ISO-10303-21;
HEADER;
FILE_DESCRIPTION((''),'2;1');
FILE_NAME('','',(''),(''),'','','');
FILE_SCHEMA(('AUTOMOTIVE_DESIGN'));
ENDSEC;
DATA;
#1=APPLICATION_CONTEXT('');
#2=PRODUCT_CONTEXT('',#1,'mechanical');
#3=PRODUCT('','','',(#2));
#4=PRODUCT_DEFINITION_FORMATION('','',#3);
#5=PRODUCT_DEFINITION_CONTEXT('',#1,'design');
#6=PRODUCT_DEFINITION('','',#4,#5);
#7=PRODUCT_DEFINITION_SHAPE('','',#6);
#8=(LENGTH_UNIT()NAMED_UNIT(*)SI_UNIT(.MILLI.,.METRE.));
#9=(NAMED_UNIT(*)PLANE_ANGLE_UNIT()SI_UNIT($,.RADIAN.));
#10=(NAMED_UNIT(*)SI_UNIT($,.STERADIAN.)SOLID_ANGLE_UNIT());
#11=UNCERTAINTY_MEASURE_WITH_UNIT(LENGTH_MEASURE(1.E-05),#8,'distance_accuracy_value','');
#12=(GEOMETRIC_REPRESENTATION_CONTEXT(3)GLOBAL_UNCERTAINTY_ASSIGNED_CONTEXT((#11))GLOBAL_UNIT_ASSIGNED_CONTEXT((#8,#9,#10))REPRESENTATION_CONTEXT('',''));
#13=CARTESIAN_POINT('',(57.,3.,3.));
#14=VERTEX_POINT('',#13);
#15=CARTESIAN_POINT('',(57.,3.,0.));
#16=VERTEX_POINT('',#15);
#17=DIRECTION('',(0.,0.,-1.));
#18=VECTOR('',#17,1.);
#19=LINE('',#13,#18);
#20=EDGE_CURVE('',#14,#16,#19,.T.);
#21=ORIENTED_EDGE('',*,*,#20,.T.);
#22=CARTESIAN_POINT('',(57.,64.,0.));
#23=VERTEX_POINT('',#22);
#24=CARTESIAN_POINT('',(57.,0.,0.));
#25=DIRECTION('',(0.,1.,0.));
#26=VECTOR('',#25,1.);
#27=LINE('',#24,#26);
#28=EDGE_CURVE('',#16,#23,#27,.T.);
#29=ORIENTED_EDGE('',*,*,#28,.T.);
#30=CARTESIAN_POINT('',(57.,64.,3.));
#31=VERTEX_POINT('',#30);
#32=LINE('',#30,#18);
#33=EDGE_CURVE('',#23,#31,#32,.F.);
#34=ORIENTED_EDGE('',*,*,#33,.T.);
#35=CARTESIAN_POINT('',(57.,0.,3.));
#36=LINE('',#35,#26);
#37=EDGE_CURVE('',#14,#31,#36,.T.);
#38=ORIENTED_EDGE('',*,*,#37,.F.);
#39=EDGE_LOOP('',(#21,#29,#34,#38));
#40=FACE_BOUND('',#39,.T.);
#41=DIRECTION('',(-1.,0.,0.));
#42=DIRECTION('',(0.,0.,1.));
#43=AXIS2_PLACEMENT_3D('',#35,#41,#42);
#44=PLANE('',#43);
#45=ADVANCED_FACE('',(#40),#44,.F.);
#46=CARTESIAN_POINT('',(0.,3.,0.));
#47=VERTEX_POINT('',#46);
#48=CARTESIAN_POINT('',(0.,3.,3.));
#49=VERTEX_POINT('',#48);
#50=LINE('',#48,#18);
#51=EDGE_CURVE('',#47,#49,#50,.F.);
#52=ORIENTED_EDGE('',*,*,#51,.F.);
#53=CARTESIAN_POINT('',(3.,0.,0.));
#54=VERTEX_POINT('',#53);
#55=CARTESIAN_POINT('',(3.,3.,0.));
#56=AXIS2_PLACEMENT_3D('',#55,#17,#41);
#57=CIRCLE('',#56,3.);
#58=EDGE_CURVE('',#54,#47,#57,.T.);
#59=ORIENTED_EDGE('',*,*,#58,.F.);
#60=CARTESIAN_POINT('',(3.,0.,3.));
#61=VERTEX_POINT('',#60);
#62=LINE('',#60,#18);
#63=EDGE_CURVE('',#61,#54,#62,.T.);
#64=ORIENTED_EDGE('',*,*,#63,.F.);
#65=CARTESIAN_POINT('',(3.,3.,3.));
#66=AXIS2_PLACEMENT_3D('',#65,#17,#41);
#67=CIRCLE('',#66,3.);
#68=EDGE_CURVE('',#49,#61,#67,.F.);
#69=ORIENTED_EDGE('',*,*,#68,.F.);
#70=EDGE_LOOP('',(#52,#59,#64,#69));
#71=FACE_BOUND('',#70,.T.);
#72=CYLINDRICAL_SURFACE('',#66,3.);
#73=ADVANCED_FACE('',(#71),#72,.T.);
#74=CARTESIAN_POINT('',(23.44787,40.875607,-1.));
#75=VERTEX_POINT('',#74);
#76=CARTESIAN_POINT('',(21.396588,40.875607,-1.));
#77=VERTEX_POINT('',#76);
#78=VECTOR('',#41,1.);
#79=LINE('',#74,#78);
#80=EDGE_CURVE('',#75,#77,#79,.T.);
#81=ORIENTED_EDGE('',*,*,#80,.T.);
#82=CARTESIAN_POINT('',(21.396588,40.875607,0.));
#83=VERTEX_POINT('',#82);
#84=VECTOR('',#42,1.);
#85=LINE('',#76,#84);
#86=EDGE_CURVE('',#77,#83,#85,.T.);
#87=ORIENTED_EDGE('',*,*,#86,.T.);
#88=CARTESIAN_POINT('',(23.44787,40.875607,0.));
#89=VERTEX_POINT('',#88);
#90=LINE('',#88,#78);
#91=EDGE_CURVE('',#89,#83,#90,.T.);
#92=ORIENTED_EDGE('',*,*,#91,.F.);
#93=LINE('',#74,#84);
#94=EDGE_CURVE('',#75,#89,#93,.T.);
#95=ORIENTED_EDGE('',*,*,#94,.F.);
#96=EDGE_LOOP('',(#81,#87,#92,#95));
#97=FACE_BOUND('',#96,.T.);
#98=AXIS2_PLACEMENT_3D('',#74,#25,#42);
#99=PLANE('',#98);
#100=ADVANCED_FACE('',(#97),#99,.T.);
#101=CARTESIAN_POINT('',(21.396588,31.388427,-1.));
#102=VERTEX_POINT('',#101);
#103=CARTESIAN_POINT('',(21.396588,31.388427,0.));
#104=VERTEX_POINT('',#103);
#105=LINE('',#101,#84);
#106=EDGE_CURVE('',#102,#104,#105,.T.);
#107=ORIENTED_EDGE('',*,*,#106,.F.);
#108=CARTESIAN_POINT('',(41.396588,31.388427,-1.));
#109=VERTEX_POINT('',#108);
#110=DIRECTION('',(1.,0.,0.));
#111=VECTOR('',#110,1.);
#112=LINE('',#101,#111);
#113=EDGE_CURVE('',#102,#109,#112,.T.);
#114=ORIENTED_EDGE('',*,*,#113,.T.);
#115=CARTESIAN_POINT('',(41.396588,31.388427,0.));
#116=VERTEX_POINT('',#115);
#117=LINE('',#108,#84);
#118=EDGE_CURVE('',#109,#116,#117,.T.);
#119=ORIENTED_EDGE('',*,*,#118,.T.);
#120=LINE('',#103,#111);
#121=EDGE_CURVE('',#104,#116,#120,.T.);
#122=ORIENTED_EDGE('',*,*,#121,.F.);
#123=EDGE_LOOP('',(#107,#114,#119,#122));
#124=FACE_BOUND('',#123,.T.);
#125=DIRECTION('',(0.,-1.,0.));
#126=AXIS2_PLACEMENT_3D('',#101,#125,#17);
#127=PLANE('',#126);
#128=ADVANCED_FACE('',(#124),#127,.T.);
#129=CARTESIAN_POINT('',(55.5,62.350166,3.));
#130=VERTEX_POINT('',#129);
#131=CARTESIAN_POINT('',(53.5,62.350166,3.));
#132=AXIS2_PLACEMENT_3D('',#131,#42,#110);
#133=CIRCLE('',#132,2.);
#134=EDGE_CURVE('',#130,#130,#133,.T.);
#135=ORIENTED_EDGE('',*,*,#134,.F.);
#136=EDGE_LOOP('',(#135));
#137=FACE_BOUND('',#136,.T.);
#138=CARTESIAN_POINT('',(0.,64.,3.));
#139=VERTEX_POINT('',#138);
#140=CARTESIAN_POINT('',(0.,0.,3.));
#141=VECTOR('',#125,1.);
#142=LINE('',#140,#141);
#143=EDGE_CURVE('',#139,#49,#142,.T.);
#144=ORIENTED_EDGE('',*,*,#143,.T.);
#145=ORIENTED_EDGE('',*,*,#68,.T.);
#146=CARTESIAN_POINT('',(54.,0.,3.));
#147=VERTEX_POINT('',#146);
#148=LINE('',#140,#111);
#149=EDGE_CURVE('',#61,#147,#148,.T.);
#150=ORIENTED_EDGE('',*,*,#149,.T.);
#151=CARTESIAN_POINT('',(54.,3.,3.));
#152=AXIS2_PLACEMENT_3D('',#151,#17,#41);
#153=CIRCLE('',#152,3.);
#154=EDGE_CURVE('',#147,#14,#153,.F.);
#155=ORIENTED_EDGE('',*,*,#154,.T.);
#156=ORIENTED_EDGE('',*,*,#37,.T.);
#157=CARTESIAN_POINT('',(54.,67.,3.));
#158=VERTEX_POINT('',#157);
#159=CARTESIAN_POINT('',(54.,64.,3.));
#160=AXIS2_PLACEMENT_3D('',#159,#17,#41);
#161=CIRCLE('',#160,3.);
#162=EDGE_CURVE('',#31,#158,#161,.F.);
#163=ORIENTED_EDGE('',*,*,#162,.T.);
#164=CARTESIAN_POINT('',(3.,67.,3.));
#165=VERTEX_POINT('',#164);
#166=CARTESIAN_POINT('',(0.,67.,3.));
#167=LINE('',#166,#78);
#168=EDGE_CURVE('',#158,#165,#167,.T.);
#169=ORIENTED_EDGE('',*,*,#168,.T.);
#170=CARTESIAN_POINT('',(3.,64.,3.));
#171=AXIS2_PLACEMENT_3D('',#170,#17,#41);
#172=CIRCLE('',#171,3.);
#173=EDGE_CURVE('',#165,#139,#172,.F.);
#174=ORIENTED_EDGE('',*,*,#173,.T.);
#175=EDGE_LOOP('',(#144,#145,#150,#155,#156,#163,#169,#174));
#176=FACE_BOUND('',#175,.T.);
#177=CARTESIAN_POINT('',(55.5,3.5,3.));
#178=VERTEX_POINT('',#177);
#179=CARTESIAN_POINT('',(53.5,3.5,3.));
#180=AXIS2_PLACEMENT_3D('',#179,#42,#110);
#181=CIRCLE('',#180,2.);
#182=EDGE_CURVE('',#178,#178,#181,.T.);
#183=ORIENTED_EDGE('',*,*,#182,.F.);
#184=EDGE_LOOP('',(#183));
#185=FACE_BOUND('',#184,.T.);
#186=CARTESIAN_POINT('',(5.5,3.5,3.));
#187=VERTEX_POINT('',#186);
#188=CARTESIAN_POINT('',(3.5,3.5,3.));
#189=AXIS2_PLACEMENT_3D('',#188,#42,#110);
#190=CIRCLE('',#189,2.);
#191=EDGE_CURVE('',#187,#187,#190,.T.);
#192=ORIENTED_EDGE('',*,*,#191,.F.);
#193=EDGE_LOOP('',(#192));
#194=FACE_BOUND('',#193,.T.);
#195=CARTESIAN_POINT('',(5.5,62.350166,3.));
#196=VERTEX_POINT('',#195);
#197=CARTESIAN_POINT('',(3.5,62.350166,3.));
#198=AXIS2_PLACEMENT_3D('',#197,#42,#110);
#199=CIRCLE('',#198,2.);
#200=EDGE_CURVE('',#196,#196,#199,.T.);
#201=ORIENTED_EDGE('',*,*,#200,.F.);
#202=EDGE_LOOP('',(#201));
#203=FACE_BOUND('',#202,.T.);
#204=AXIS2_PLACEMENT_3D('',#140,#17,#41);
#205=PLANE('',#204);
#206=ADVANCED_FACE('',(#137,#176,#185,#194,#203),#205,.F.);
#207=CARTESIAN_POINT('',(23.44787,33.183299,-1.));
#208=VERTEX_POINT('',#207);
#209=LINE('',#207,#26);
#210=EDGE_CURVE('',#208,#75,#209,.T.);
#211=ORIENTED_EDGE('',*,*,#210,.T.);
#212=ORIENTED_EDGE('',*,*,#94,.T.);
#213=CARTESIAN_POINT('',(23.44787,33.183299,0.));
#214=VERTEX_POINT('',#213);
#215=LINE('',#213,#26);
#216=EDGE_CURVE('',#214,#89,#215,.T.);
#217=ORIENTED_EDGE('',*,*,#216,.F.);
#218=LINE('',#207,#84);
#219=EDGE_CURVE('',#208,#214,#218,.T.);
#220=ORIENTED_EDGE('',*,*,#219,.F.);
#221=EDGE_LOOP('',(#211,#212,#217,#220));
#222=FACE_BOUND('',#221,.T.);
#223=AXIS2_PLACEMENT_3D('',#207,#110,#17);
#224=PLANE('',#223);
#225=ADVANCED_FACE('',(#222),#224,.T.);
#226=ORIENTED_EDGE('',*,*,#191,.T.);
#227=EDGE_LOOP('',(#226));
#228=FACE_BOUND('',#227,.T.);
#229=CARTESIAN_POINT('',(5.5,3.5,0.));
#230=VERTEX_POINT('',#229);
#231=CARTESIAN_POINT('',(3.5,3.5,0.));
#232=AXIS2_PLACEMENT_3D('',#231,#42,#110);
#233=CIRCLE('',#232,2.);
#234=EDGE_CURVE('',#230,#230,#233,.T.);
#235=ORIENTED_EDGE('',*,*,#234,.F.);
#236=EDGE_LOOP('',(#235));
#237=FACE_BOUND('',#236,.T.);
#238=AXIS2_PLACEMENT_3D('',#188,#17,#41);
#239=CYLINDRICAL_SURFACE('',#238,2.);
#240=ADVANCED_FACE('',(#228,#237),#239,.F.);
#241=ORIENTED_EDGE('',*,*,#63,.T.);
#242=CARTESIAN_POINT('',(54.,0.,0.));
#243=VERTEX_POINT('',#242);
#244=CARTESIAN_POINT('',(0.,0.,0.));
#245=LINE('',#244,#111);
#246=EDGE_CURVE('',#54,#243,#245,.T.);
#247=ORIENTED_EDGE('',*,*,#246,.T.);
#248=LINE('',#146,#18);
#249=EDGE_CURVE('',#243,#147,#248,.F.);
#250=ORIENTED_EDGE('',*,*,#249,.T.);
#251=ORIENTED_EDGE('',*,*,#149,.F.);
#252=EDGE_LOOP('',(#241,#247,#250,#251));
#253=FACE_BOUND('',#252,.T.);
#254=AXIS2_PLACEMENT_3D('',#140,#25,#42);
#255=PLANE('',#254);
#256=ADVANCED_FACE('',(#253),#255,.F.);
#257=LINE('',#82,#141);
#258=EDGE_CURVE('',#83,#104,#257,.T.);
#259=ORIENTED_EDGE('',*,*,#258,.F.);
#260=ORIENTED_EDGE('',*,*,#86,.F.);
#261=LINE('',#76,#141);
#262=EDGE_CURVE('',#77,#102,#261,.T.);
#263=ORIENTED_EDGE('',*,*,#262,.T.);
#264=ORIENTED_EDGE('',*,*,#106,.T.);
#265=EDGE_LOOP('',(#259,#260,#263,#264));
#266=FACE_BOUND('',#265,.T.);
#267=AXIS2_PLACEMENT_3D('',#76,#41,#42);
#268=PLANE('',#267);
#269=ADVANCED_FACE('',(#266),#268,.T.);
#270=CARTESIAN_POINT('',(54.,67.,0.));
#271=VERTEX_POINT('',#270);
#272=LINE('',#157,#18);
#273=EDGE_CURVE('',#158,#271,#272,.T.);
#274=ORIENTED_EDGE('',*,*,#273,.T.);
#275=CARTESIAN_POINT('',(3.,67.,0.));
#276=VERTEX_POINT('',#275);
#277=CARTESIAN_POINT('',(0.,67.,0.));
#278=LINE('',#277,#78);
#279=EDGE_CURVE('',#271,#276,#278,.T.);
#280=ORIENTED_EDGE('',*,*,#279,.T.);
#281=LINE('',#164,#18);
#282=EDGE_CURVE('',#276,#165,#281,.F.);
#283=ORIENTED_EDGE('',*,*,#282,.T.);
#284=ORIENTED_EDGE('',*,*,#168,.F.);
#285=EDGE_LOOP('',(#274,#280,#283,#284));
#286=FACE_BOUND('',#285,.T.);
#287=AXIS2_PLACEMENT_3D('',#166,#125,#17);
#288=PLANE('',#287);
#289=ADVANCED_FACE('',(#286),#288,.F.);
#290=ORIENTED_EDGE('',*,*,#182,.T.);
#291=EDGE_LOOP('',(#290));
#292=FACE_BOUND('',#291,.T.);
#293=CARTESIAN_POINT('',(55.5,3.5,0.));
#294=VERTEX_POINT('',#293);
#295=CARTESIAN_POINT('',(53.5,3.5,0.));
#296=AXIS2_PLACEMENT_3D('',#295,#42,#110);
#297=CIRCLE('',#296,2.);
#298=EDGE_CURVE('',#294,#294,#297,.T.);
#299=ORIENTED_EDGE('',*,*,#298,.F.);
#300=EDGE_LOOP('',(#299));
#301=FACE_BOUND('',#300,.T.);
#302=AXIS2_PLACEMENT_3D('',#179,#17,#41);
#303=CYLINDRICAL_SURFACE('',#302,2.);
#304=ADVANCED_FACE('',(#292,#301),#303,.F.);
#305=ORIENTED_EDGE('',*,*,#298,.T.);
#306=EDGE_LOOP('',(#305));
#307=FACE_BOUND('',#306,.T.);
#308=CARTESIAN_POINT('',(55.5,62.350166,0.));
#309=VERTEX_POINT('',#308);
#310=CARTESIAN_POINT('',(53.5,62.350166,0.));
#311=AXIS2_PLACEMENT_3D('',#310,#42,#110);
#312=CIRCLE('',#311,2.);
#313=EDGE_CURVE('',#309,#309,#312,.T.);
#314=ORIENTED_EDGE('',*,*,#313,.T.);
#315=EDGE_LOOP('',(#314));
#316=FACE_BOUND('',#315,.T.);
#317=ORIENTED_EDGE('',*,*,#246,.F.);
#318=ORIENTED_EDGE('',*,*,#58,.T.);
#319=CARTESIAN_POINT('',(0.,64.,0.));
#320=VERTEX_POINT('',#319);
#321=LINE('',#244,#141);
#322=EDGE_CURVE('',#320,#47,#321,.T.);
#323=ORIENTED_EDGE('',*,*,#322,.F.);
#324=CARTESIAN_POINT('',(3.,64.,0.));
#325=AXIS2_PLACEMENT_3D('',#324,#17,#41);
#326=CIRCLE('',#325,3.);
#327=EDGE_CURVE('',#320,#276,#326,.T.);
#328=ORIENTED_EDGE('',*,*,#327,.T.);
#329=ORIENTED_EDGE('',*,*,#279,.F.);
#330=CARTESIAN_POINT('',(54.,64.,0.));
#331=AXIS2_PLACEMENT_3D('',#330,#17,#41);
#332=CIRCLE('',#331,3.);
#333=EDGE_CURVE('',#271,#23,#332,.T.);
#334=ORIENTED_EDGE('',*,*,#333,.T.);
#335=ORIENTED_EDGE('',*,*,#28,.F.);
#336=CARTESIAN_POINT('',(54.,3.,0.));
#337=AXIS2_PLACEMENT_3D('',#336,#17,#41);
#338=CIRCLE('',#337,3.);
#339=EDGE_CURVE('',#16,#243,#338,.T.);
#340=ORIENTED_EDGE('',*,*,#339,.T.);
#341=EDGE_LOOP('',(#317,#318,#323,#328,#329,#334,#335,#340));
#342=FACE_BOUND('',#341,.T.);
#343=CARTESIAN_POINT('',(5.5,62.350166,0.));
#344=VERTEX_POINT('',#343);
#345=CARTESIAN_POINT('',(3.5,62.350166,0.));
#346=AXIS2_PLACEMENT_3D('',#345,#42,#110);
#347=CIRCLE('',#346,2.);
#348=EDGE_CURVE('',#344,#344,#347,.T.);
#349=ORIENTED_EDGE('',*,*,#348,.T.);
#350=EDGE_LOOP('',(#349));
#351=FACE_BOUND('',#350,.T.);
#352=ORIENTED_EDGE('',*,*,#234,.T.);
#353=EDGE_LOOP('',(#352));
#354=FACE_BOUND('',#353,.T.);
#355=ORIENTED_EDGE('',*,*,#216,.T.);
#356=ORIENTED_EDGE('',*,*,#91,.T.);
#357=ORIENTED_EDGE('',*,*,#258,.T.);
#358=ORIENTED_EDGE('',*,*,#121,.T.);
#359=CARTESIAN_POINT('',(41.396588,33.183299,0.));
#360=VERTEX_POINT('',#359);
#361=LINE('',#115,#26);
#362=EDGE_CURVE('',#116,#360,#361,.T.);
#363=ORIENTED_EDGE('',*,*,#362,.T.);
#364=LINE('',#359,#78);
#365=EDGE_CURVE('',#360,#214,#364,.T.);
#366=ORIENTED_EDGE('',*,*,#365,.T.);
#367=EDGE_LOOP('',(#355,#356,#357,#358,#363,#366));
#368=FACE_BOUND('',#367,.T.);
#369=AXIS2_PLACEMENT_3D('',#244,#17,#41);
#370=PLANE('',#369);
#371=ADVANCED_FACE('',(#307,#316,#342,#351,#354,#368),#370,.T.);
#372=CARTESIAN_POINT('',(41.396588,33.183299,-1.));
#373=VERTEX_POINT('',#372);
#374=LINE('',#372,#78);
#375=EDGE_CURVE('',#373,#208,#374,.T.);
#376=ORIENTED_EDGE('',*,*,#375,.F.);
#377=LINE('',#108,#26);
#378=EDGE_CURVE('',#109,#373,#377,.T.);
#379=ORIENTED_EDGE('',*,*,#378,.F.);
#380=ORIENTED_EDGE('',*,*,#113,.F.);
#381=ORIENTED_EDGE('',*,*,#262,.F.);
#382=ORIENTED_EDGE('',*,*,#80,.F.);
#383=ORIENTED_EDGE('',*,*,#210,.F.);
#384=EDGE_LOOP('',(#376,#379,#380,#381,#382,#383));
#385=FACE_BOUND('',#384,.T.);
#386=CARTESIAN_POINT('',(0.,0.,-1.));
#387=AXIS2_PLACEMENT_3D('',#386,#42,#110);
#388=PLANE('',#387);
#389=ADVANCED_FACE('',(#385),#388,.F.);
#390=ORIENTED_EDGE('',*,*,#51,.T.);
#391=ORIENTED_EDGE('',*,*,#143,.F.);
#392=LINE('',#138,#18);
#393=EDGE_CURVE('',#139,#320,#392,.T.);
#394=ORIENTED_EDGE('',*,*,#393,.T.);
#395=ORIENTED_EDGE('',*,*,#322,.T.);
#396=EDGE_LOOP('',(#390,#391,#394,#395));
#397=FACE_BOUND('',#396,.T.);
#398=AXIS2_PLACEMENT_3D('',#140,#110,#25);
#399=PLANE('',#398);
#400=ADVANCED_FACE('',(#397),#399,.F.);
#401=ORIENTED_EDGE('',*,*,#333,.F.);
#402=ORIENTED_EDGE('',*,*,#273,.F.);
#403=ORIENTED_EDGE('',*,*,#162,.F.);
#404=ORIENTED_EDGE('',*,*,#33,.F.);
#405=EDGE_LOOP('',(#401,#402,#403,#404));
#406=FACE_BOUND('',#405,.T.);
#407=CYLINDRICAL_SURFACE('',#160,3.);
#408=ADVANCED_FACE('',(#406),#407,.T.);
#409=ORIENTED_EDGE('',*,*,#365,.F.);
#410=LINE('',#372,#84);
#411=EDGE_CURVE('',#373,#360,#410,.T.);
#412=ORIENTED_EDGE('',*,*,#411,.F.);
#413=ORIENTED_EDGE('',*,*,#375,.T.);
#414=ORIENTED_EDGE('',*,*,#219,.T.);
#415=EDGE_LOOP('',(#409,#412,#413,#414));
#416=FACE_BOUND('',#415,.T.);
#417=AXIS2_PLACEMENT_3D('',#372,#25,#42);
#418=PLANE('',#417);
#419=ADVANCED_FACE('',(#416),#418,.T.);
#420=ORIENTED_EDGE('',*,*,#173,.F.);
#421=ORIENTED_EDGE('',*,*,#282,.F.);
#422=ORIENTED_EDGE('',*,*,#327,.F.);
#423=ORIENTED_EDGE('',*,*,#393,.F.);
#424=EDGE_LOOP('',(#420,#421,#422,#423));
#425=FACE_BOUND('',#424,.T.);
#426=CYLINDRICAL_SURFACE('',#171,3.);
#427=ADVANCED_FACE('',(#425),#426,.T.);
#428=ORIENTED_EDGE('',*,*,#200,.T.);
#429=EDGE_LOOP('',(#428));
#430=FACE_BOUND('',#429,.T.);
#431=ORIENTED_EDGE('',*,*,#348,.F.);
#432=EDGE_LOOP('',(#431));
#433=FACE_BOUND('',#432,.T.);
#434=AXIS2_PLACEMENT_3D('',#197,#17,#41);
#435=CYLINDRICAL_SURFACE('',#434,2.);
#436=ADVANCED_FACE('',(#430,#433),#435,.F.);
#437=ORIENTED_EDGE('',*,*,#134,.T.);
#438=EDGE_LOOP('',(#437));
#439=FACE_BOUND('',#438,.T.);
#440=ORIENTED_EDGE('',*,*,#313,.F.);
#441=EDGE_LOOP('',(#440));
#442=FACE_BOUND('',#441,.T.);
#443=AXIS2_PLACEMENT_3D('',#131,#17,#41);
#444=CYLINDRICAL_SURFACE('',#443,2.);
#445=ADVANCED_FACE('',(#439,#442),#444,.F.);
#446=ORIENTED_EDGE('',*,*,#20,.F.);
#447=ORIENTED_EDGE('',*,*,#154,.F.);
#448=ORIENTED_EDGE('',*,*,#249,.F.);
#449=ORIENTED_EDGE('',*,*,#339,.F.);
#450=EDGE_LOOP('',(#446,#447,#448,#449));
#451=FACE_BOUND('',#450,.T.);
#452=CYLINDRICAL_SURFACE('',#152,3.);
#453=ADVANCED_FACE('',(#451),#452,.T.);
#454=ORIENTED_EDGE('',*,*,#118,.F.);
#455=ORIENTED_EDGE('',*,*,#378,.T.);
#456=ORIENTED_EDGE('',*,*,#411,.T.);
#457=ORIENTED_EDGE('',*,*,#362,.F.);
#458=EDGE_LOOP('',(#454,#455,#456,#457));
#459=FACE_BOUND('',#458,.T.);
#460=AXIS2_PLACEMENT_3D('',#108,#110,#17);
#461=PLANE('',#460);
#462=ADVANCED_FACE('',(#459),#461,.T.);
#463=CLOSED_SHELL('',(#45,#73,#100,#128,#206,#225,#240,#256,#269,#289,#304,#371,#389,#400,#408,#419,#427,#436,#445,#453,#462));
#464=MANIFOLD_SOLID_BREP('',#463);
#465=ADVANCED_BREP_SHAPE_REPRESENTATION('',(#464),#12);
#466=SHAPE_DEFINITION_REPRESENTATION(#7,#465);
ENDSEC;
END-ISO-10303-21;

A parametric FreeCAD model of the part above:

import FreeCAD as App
import Part
import Sketcher

V = App.Vector


def edges_at(feature, points):
    """Names of the edges that pass closest to the given points."""
    edges = feature.Shape.Edges
    near = lambda p: min(range(len(edges)), key=lambda i: edges[i].distToShape(Part.Vertex(*p))[0])
    return sorted({f"Edge{near(p) + 1}" for p in points})

doc = App.newDocument("Part")
body = doc.addObject("PartDesign::Body", "Body")

# Sketch on XY plane
sketch1 = body.newObject("Sketcher::SketchObject", "Sketch")
sketch1.AttachmentSupport = (doc.getObject("XY_Plane"), [""])
sketch1.MapMode = "FlatFace"
sketch1.addGeometry([
    Part.LineSegment(V(0, 67, 0), V(0, 0, 0)),  # 0
    Part.LineSegment(V(0, 0, 0), V(57, 0, 0)),  # 1
    Part.LineSegment(V(57, 0, 0), V(57, 67, 0)),  # 2
    Part.LineSegment(V(57, 67, 0), V(0, 67, 0)),  # 3
    Part.Circle(V(3.5, 3.5, 0), V(0, 0, 1), 2),  # 4
    Part.Circle(V(53.5, 3.5, 0), V(0, 0, 1), 2),  # 5
    Part.Circle(V(3.5, 62.4, 0), V(0, 0, 1), 2),  # 6
    Part.Circle(V(53.5, 62.4, 0), V(0, 0, 1), 2),  # 7
], False)
sketch1.addConstraint([
    Sketcher.Constraint("Coincident", 0, 2, 1, 1),
    Sketcher.Constraint("Coincident", 1, 2, 2, 1),
    Sketcher.Constraint("Coincident", 2, 2, 3, 1),
    Sketcher.Constraint("Coincident", 3, 2, 0, 1),
    Sketcher.Constraint("Vertical", 0),
    Sketcher.Constraint("Horizontal", 1),
    Sketcher.Constraint("Vertical", 2),
    Sketcher.Constraint("Horizontal", 3),
    Sketcher.Constraint("Coincident", 0, 2, -1, 1),
    Sketcher.Constraint("Equal", 4, 5),
    Sketcher.Constraint("Equal", 5, 6),
    Sketcher.Constraint("Equal", 6, 7),
    Sketcher.Constraint("Horizontal", 4, 3, 5, 3),
    Sketcher.Constraint("Horizontal", 6, 3, 7, 3),
    Sketcher.Constraint("Vertical", 4, 3, 6, 3),
    Sketcher.Constraint("Vertical", 5, 3, 7, 3),
    Sketcher.Constraint("Diameter", 4, 4.0),
    Sketcher.Constraint("DistanceX", 1, 1, 1, 2, 57.0),
    Sketcher.Constraint("DistanceY", 0, 2, 0, 1, 67.0),
    Sketcher.Constraint("DistanceX", 4, 3, 5, 3, 50.0),
    Sketcher.Constraint("DistanceX", -1, 1, 4, 3, 3.5),
    Sketcher.Constraint("DistanceY", -1, 1, 4, 3, 3.5),
    Sketcher.Constraint("DistanceY", -1, 1, 6, 3, 62.350166),
])
pad1 = body.newObject("PartDesign::Pad", "Pad")
pad1.Profile = sketch1
pad1.Length = 3

# Sketch on XY plane
sketch2 = body.newObject("Sketcher::SketchObject", "Sketch001")
sketch2.AttachmentSupport = (doc.getObject("XY_Plane"), [""])
sketch2.MapMode = "FlatFace"
sketch2.addGeometry([
    Part.LineSegment(V(41.4, 33.2, 0), V(41.4, 31.4, 0)),  # 0
    Part.LineSegment(V(41.4, 31.4, 0), V(21.4, 31.4, 0)),  # 1
    Part.LineSegment(V(21.4, 31.4, 0), V(21.4, 40.9, 0)),  # 2
    Part.LineSegment(V(21.4, 40.9, 0), V(23.4, 40.9, 0)),  # 3
    Part.LineSegment(V(23.4, 40.9, 0), V(23.4, 33.2, 0)),  # 4
    Part.LineSegment(V(23.4, 33.2, 0), V(41.4, 33.2, 0)),  # 5
], False)
sketch2.addConstraint([
    Sketcher.Constraint("Coincident", 0, 2, 1, 1),
    Sketcher.Constraint("Coincident", 1, 2, 2, 1),
    Sketcher.Constraint("Coincident", 2, 2, 3, 1),
    Sketcher.Constraint("Coincident", 3, 2, 4, 1),
    Sketcher.Constraint("Coincident", 4, 2, 5, 1),
    Sketcher.Constraint("Coincident", 5, 2, 0, 1),
    Sketcher.Constraint("Vertical", 0),
    Sketcher.Constraint("Horizontal", 1),
    Sketcher.Constraint("Vertical", 2),
    Sketcher.Constraint("Horizontal", 3),
    Sketcher.Constraint("Vertical", 4),
    Sketcher.Constraint("Horizontal", 5),
    Sketcher.Constraint("DistanceX", 1, 2, 1, 1, 20.0),
    Sketcher.Constraint("DistanceY", 0, 2, 0, 1, 1.794872),
    Sketcher.Constraint("DistanceY", 2, 1, 2, 2, 9.487179),
    Sketcher.Constraint("DistanceY", -1, 1, 4, 2, 33.183299),
    Sketcher.Constraint("DistanceX", 3, 1, 3, 2, 2.051282),
    Sketcher.Constraint("DistanceX", -1, 1, 0, 2, 41.396588),
])
pad2 = body.newObject("PartDesign::Pad", "Pad001")
pad2.Profile = sketch2
pad2.Length = 1
pad2.Reversed = True
doc.recompute()

fillet = body.newObject("PartDesign::Fillet", "Fillet")
fillet.Base = (pad2, edges_at(pad2, [
    (0, 67, 1.5),
    (57, 67, 1.5),
    (57, 0, 1.5),
    (0, 0, 1.5),
]))
fillet.Radius = 3

doc.recompute()
